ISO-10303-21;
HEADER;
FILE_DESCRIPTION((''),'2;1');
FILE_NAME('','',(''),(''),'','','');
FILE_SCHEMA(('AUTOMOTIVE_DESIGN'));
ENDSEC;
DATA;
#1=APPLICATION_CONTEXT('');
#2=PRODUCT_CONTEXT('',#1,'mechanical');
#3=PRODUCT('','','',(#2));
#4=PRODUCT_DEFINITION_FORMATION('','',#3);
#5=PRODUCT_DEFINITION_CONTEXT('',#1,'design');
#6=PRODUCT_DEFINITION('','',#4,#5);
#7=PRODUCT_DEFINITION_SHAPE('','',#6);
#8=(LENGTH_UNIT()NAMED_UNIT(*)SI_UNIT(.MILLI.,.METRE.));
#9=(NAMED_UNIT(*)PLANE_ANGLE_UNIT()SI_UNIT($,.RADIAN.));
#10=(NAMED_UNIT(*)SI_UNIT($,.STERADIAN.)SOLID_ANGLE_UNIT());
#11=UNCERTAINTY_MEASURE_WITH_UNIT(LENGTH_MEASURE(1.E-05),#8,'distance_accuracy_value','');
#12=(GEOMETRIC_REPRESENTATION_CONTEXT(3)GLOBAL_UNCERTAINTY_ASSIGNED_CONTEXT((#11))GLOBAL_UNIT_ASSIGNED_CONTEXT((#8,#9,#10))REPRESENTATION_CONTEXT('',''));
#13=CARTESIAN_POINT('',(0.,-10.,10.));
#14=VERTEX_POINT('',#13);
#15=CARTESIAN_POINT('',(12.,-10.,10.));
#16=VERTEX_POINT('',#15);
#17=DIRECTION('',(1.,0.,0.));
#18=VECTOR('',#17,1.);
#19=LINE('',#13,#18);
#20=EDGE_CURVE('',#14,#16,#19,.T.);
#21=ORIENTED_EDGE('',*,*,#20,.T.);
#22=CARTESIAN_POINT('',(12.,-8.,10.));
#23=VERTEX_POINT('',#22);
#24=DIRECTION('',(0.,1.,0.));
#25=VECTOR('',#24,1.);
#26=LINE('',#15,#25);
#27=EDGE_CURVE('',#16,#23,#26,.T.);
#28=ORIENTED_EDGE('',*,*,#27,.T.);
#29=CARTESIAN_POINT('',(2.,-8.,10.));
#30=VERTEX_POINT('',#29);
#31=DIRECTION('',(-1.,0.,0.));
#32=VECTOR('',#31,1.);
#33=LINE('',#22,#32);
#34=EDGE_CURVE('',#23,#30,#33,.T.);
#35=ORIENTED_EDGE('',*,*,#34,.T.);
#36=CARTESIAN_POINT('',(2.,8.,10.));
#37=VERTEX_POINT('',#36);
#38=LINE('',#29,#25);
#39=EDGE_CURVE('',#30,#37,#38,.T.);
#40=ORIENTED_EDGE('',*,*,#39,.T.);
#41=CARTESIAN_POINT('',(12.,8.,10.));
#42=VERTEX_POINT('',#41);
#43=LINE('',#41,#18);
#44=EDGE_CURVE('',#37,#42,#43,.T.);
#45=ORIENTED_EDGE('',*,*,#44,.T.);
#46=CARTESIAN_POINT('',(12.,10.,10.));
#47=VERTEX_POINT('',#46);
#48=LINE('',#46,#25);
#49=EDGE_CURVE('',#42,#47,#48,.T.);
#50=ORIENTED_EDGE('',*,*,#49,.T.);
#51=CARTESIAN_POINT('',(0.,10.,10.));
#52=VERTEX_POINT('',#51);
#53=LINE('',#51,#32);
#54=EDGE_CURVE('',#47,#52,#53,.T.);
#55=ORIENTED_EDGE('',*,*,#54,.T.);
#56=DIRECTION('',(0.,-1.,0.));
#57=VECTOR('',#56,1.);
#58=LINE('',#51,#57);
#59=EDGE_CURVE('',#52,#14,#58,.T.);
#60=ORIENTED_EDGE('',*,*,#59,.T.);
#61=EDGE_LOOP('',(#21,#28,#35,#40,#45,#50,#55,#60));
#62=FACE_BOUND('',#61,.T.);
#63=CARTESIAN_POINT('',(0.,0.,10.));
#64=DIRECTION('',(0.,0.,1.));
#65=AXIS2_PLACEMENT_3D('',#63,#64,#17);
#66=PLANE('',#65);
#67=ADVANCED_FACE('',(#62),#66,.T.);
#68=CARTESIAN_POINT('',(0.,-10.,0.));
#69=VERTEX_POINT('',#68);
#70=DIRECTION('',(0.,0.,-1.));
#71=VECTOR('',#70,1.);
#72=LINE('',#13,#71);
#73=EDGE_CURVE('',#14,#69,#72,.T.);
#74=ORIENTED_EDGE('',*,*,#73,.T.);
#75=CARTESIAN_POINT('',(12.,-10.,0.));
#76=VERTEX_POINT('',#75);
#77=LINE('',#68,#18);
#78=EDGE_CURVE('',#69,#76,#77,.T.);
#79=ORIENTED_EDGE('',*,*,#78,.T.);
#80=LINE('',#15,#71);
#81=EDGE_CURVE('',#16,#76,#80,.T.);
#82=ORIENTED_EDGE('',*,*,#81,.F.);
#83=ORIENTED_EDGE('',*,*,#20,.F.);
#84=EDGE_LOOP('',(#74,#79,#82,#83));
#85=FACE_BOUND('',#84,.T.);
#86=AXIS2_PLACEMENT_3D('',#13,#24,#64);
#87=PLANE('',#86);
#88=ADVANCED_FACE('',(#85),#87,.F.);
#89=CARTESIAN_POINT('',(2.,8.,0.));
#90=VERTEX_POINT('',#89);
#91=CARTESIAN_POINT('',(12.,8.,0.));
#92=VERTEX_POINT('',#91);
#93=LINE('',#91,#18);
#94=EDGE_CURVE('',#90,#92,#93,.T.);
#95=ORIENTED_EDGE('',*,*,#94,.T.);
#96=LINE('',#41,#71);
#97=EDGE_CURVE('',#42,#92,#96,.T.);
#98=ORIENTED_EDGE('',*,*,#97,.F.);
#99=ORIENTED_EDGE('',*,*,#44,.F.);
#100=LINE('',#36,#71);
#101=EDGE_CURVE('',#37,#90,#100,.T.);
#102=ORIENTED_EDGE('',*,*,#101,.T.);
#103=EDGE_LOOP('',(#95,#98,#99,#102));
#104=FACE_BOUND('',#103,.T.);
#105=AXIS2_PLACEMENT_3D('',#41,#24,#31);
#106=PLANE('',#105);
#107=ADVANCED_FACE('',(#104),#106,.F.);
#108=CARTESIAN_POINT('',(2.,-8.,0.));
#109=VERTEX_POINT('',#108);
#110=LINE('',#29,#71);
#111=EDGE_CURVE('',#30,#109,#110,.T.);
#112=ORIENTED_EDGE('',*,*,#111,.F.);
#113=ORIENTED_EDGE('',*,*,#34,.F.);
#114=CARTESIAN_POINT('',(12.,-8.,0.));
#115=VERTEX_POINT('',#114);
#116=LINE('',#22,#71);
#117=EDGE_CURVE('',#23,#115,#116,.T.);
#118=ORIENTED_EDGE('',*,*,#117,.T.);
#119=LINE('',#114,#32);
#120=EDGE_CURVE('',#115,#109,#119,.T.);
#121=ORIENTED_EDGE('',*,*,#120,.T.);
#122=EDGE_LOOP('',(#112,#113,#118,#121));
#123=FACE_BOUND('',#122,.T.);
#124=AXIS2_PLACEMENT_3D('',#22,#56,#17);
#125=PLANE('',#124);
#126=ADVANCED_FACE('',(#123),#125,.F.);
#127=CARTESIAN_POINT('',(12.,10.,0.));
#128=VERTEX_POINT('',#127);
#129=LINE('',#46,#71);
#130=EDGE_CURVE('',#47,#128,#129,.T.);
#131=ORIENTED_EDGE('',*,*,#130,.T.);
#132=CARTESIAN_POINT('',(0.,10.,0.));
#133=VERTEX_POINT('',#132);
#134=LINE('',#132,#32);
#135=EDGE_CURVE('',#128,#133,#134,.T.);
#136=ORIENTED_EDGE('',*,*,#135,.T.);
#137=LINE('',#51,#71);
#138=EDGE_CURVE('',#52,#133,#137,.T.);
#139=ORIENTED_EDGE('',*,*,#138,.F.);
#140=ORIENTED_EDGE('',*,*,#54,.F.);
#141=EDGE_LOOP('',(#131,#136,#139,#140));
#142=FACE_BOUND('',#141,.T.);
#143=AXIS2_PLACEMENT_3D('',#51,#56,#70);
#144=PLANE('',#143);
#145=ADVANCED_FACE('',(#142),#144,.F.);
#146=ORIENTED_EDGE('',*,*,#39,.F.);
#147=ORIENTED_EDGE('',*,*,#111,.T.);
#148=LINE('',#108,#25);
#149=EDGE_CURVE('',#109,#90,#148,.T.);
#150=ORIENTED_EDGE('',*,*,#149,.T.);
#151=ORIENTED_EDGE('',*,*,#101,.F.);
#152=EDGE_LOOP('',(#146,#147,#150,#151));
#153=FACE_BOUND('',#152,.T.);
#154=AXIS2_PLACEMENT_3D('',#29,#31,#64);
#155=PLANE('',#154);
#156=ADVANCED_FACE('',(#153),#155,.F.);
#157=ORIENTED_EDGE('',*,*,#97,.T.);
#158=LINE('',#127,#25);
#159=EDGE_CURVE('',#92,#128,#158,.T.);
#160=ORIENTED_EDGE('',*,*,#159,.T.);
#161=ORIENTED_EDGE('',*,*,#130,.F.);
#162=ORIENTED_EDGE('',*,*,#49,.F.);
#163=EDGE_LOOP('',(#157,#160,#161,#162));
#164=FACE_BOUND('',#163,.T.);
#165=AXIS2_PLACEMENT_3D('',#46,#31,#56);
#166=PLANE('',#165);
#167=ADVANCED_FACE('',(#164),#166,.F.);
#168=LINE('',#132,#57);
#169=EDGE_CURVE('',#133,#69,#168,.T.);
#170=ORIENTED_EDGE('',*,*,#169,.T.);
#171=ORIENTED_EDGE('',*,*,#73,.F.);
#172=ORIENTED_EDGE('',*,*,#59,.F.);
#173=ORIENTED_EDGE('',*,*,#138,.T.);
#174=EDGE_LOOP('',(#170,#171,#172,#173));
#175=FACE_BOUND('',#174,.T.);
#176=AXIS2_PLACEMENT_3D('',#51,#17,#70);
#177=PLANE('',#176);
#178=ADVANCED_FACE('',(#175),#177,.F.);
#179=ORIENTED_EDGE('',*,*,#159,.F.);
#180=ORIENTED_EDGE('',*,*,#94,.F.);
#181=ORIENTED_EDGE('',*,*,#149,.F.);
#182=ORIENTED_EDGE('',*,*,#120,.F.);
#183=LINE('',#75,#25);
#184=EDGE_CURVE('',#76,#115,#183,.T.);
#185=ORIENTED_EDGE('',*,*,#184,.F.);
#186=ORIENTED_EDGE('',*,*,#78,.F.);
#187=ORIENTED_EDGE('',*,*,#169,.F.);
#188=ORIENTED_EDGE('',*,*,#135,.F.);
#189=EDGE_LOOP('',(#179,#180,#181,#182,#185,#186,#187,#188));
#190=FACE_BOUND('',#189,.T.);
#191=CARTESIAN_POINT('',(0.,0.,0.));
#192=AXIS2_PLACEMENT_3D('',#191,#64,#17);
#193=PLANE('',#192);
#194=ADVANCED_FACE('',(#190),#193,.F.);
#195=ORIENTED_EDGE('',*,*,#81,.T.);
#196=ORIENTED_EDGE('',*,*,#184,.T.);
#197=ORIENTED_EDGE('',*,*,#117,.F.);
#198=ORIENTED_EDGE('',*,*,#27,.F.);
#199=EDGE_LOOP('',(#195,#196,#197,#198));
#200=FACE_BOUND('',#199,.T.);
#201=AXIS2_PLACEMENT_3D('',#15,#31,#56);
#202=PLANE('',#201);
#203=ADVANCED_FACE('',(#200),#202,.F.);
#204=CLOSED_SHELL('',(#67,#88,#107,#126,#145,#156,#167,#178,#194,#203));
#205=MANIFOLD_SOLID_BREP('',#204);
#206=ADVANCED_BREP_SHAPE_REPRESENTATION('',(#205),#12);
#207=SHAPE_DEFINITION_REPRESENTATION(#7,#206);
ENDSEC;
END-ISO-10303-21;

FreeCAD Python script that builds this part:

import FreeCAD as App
import Part
import Sketcher
from FreeCAD import Vector


def add_polygon(sketch, points):
    """Adds a closed chain of lines whose ends are joined by coincident constraints."""
    first, n = sketch.GeometryCount, len(points)
    for a, b in zip(points, points[1:] + points[:1]):
        sketch.addGeometry(Part.LineSegment(App.Vector(*a, 0), App.Vector(*b, 0)), False)
    for i in range(n):
        sketch.addConstraint(Sketcher.Constraint("Coincident", first + i, 2, first + (i + 1) % n, 1))

doc = App.newDocument("Part")
body = doc.addObject("PartDesign::Body", "Body")

sketch1 = body.newObject("Sketcher::SketchObject", "Sketch")
sketch1.AttachmentSupport = (doc.getObject("XY_Plane"), [""])
sketch1.MapMode = "FlatFace"
add_polygon(sketch1, [(0, 10), (0, -10), (12, -10), (12, -8), (2, -8), (2, 8), (12, 8), (12, 10)])
sketch1.addConstraint(Sketcher.Constraint("Vertical", 0))
sketch1.addConstraint(Sketcher.Constraint("Horizontal", 1))
sketch1.addConstraint(Sketcher.Constraint("Vertical", 2))
sketch1.addConstraint(Sketcher.Constraint("Horizontal", 3))
sketch1.addConstraint(Sketcher.Constraint("Vertical", 4))
sketch1.addConstraint(Sketcher.Constraint("Horizontal", 5))
sketch1.addConstraint(Sketcher.Constraint("Vertical", 6))
sketch1.addConstraint(Sketcher.Constraint("Horizontal", 7))
sketch1.addConstraint(Sketcher.Constraint("Symmetric", 0, 2, 7, 2, -1, 1))
sketch1.addConstraint(Sketcher.Constraint("Symmetric", 2, 2, 5, 2, -1))
sketch1.addConstraint(Sketcher.Constraint("DistanceX", 1, 1, 1, 2, 12.0))
sketch1.addConstraint(Sketcher.Constraint("DistanceX", 3, 2, 3, 1, 10.0))
sketch1.addConstraint(Sketcher.Constraint("DistanceY", 0, 2, 0, 1, 20.0))
sketch1.addConstraint(Sketcher.Constraint("DistanceY", 2, 1, 2, 2, 2.0))
pad1 = body.newObject("PartDesign::Pad", "Pad")
pad1.Profile = sketch1
pad1.Length = 10

doc.recompute()
